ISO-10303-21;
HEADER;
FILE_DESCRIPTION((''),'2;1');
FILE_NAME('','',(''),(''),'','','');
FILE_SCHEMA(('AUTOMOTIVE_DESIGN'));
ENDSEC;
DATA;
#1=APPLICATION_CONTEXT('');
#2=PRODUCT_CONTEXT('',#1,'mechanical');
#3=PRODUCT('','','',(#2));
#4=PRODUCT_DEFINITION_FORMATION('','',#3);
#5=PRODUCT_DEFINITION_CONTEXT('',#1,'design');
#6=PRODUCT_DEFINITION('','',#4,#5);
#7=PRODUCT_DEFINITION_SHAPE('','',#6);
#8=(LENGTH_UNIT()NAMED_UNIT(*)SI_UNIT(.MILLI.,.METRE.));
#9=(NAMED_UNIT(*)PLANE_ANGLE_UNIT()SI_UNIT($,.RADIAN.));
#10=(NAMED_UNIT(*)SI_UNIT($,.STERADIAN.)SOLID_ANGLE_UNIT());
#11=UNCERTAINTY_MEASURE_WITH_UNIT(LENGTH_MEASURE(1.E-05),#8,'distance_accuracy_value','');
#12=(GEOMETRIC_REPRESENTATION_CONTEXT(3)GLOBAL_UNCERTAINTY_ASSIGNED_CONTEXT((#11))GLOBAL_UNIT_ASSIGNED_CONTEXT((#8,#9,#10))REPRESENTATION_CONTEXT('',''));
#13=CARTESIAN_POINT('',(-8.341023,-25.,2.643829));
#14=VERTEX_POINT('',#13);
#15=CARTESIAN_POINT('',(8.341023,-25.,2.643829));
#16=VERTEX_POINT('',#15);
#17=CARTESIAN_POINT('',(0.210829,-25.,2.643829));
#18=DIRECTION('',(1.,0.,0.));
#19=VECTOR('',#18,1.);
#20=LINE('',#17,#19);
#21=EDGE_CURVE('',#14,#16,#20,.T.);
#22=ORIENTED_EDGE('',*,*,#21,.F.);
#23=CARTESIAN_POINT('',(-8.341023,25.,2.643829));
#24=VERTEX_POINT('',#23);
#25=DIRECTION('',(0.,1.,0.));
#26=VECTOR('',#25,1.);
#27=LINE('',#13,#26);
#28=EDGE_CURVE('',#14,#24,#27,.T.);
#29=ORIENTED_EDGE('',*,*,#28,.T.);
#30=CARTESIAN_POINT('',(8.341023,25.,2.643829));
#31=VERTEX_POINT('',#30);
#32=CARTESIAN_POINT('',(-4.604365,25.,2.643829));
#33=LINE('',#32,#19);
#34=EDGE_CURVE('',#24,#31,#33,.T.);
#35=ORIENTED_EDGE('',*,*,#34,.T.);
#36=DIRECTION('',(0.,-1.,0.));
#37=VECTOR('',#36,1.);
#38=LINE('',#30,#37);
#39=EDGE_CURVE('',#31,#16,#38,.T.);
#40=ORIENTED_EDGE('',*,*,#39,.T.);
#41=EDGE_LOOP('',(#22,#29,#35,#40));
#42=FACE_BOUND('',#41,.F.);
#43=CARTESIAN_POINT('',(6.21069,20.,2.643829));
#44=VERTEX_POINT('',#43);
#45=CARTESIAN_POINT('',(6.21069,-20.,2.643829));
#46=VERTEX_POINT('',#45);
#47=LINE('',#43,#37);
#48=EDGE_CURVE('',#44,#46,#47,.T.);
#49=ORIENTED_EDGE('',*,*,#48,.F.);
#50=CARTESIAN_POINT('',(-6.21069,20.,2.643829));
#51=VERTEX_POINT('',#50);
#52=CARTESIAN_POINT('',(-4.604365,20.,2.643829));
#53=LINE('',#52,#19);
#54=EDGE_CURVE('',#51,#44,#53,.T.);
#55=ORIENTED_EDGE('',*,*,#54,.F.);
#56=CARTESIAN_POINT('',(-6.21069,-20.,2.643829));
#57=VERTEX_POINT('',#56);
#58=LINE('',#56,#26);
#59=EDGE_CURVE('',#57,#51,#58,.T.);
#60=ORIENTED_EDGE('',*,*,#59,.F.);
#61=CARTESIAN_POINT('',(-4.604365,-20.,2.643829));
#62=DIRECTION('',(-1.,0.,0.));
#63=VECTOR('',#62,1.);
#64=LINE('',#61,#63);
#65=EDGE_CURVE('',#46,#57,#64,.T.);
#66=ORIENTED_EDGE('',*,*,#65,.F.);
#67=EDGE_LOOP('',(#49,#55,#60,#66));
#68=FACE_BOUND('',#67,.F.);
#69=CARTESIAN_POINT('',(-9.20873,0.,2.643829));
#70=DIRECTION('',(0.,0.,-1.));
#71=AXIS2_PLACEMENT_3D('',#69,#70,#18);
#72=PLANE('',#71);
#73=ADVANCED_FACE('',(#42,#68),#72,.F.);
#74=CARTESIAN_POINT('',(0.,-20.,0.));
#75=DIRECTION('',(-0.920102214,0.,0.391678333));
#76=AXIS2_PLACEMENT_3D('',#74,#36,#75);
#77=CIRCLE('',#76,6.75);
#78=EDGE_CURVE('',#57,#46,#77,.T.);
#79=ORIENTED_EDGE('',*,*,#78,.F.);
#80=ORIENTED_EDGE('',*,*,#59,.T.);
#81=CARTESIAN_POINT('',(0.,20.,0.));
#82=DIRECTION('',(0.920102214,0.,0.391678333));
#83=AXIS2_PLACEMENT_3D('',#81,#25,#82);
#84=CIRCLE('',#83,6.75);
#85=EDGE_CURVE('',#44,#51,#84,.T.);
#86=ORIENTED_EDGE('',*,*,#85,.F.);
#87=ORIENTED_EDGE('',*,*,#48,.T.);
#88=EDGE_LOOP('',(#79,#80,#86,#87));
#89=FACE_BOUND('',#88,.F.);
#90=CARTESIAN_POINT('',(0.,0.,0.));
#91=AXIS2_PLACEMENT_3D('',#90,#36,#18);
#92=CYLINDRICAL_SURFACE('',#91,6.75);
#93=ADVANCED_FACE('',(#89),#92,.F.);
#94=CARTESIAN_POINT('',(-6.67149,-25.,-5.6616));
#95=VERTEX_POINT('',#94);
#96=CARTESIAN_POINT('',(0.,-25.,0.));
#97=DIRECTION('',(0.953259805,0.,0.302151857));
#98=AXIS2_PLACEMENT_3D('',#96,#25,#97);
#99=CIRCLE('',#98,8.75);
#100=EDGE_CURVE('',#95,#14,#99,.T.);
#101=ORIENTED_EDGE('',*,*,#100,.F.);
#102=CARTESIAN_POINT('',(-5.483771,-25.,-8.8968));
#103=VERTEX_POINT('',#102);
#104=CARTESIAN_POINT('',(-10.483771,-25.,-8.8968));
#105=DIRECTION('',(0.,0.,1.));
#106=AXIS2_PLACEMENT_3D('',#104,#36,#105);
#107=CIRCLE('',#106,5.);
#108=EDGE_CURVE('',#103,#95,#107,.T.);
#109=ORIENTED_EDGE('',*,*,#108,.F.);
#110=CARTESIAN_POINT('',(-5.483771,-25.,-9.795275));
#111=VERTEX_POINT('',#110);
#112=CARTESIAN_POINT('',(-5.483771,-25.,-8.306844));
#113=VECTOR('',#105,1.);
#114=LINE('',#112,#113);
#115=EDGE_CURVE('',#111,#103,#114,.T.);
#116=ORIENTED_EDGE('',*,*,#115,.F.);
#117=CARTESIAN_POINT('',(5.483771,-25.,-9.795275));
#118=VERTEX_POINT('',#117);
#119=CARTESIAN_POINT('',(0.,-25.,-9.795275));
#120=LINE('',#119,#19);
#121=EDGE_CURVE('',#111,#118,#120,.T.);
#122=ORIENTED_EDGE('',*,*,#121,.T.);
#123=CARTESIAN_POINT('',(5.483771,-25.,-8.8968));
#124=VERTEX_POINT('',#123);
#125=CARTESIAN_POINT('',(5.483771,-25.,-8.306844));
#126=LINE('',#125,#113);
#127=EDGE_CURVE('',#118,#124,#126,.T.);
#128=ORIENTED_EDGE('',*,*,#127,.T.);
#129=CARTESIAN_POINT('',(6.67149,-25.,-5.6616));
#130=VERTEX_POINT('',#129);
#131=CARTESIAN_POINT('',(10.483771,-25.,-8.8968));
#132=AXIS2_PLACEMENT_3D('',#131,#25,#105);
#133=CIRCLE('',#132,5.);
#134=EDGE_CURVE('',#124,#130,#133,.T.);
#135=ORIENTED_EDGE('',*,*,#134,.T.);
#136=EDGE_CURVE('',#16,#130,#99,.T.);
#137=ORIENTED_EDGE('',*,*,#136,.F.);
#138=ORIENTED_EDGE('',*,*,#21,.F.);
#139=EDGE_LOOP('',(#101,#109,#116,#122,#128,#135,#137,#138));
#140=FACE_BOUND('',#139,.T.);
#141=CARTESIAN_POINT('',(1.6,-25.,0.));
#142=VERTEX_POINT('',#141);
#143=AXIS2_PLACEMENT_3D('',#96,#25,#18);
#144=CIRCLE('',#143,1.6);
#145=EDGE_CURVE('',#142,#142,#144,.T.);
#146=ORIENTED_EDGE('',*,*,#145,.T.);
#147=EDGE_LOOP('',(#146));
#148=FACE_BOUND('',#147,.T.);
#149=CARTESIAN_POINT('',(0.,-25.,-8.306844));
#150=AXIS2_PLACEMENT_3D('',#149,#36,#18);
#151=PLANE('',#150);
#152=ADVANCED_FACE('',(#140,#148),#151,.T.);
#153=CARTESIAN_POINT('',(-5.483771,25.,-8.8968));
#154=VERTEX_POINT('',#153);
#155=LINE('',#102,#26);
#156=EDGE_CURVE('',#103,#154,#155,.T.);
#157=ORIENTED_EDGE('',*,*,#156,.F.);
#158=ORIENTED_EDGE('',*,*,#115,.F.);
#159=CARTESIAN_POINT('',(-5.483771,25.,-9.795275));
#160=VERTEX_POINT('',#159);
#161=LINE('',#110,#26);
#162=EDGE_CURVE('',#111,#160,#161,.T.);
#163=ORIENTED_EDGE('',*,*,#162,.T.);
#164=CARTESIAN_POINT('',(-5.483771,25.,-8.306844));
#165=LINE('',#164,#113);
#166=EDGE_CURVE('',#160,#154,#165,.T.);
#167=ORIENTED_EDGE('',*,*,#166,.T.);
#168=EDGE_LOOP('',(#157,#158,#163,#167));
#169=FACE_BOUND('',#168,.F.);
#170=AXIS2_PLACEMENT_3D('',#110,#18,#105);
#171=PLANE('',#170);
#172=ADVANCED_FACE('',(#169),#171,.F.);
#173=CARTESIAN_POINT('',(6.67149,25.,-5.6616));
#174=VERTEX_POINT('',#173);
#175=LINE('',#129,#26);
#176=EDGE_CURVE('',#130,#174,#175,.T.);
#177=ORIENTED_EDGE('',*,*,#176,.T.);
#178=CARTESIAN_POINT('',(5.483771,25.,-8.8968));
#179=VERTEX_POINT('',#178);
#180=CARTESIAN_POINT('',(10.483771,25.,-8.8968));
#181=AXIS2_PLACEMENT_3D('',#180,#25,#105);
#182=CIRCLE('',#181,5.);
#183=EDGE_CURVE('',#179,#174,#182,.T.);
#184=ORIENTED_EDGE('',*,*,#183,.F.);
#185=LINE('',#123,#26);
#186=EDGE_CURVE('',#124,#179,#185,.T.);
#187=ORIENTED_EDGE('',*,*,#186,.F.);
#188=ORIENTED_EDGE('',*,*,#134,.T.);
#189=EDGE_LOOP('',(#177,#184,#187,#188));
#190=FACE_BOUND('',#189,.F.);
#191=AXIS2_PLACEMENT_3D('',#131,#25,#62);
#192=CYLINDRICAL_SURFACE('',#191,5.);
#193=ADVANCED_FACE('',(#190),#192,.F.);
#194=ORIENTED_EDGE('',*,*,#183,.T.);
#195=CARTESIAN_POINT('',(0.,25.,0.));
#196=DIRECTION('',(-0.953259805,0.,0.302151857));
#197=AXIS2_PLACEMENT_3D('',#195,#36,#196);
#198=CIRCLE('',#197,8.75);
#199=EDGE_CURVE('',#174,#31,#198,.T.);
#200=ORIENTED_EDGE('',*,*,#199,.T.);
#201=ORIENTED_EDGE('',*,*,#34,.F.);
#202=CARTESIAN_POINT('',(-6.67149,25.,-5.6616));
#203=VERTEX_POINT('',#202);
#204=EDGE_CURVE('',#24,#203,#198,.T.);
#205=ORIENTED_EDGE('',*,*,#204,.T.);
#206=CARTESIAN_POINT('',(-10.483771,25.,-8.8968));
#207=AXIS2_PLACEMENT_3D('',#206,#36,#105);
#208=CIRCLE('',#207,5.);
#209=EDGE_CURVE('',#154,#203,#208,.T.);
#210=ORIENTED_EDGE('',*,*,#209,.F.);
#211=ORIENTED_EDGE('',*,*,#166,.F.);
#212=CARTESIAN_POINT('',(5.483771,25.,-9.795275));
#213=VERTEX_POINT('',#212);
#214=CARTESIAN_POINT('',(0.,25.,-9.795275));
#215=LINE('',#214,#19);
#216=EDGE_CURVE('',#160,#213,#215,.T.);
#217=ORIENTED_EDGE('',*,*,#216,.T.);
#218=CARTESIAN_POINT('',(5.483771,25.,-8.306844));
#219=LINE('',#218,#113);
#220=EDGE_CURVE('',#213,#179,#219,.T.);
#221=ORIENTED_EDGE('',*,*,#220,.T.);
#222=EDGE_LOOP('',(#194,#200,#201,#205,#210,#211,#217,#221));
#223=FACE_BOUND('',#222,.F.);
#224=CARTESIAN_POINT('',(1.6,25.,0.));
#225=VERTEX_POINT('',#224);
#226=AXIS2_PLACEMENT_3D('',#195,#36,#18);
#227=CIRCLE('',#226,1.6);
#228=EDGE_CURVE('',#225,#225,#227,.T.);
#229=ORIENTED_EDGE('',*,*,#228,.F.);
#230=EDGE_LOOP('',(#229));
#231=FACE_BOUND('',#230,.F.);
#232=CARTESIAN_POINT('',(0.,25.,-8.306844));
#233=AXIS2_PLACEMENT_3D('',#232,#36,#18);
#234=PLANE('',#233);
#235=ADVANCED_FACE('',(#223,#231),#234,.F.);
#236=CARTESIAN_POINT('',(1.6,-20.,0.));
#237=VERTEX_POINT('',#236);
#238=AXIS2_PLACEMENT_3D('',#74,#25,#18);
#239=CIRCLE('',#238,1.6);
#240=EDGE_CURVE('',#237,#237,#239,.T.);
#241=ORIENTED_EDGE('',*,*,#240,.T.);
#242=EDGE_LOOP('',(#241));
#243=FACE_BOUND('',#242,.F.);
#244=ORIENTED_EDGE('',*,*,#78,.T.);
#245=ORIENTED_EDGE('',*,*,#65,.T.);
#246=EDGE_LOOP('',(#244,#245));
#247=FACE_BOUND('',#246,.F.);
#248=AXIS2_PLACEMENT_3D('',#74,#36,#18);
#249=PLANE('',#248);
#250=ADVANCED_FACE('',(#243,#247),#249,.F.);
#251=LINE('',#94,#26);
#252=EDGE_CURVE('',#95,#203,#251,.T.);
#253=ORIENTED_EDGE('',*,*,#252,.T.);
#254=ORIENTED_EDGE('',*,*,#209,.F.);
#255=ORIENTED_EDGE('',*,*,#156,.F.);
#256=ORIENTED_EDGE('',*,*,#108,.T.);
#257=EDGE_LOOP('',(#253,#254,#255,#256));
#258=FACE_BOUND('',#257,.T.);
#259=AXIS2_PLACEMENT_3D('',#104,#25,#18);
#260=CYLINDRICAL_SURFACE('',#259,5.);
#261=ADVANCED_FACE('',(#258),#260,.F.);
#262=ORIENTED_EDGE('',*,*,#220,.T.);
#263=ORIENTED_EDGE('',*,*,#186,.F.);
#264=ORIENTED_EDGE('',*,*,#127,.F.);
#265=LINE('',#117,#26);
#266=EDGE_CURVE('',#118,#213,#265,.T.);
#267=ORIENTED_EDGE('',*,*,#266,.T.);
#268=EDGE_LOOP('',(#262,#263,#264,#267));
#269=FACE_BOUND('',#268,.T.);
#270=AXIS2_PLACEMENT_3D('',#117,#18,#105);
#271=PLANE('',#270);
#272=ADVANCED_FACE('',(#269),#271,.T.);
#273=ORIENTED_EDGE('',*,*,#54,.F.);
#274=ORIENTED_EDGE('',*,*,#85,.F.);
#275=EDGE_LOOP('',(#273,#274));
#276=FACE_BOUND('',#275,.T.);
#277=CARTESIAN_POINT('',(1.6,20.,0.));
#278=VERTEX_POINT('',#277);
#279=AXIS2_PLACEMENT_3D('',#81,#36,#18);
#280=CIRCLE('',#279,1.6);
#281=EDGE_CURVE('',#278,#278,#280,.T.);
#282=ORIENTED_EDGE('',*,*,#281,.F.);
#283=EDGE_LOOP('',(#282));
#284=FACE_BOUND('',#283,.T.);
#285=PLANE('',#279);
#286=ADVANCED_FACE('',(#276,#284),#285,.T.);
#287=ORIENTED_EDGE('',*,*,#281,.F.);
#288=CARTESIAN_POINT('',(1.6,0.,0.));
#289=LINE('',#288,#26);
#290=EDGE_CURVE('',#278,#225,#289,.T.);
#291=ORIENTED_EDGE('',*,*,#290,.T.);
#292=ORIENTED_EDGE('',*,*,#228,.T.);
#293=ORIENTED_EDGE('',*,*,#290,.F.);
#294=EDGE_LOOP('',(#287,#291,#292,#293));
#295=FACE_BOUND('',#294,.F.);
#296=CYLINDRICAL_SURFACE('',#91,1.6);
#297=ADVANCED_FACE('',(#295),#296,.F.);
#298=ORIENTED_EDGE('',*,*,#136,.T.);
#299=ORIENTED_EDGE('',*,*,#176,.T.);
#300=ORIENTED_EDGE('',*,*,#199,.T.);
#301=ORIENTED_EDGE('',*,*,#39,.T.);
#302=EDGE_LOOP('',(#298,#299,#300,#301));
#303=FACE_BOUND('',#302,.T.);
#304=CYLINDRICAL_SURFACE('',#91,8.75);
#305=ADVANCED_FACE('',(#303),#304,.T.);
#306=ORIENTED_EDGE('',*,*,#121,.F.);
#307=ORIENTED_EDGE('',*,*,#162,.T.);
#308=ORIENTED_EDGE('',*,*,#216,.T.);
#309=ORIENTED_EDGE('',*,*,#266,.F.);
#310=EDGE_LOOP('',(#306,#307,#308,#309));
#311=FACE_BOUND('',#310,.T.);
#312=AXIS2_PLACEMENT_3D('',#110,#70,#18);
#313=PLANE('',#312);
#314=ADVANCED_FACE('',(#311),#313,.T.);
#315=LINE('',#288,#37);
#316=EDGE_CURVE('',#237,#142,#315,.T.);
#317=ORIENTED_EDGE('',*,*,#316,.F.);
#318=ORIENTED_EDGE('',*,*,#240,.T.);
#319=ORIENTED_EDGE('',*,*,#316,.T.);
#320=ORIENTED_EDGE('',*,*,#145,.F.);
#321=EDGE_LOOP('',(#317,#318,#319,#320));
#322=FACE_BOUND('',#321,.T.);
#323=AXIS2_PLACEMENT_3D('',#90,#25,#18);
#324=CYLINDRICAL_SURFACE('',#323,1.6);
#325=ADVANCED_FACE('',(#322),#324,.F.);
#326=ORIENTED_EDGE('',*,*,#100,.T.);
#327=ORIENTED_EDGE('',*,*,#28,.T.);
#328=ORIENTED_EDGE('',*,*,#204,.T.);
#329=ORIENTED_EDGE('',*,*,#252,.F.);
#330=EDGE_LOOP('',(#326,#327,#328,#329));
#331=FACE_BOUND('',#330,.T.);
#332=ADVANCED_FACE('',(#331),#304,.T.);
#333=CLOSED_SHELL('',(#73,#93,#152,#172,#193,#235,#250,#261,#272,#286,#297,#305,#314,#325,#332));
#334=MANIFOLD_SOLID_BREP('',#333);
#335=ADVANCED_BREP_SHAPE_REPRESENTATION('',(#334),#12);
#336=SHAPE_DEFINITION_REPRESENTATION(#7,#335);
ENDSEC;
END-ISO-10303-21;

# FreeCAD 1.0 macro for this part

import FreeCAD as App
import Part
import Sketcher
from FreeCAD import Vector


def edges_at(feature, points):
    """Names of the edges that pass closest to the given points."""
    edges = feature.Shape.Edges
    near = lambda p: min(range(len(edges)), key=lambda i: edges[i].distToShape(Part.Vertex(*p))[0])
    return sorted({f"Edge{near(p) + 1}" for p in points})


def add_polygon(sketch, points):
    """Adds a closed chain of lines whose ends are joined by coincident constraints."""
    first, n = sketch.GeometryCount, len(points)
    for a, b in zip(points, points[1:] + points[:1]):
        sketch.addGeometry(Part.LineSegment(App.Vector(*a, 0), App.Vector(*b, 0)), False)
    for i in range(n):
        sketch.addConstraint(Sketcher.Constraint("Coincident", first + i, 2, first + (i + 1) % n, 1))

doc = App.newDocument("Part")
body = doc.addObject("PartDesign::Body", "Body")

# Sketch on XZ plane
sketch1 = body.newObject("Sketcher::SketchObject", "Sketch")
sketch1.AttachmentSupport = (doc.getObject("XZ_Plane"), [""])
sketch1.MapMode = "FlatFace"
sketch1.addGeometry(Part.Circle(Vector(0, 0, 0), Vector(0, 0, 1), 9), False)
sketch1.addConstraint([
    Sketcher.Constraint("Coincident", 0, 3, -1, 1),
    Sketcher.Constraint("Diameter", 0, 17.5),
])
pad1 = body.newObject("PartDesign::Pad", "Pad")
pad1.Profile = sketch1
pad1.Type = "TwoLengths"
pad1.Length = 25
pad1.Length2 = 25

# Sketch on XZ plane
sketch2 = body.newObject("Sketcher::SketchObject", "Sketch001")
sketch2.AttachmentSupport = (doc.getObject("XZ_Plane"), [""])
sketch2.MapMode = "FlatFace"
sketch2.addGeometry(Part.Circle(Vector(0, 0, 0), Vector(0, 0, 1), 7), False)
sketch2.addConstraint([
    Sketcher.Constraint("Coincident", 0, 3, -1, 1),
    Sketcher.Constraint("Diameter", 0, 13.5),
])
pocket1 = body.newObject("PartDesign::Pocket", "Pocket")
pocket1.Profile = sketch2
pocket1.Type = "TwoLengths"
pocket1.Length = 20
pocket1.Length2 = 20

# Sketch on XZ plane
sketch3 = body.newObject("Sketcher::SketchObject", "Sketch002")
sketch3.AttachmentSupport = (doc.getObject("XZ_Plane"), [""])
sketch3.MapMode = "FlatFace"
add_polygon(sketch3, [(-9, 9), (-9, 3), (10, 3), (10, 9)])  # lines 0-3
sketch3.addConstraint([
    Sketcher.Constraint("Vertical", 0),
    Sketcher.Constraint("Horizontal", 1),
    Sketcher.Constraint("Vertical", 2),
    Sketcher.Constraint("Horizontal", 3),
    Sketcher.Constraint("DistanceX", 1, 1, 1, 2, 18.839119),
    Sketcher.Constraint("DistanceY", 0, 2, 0, 1, 6.496437),
    Sketcher.Constraint("DistanceX", 0, 2, -1, 1, 9.20873),
    Sketcher.Constraint("DistanceY", -1, 1, 0, 2, 2.643829),
])
pocket2 = body.newObject("PartDesign::Pocket", "Pocket001")
pocket2.Profile = sketch3
pocket2.Type = "ThroughAll"
pocket2.Midplane = True

# Sketch on XZ plane
sketch4 = body.newObject("Sketcher::SketchObject", "Sketch003")
sketch4.AttachmentSupport = (doc.getObject("XZ_Plane"), [""])
sketch4.MapMode = "FlatFace"
sketch4.AttachmentOffset = App.Placement(Vector(0, 0, 25), App.Rotation())
add_polygon(sketch4, [(-5.5, -6.8), (-5.5, -9.8), (5.5, -9.8), (5.5, -6.8)])  # lines 0-3
sketch4.addConstraint([
    Sketcher.Constraint("Vertical", 0),
    Sketcher.Constraint("Horizontal", 1),
    Sketcher.Constraint("Vertical", 2),
    Sketcher.Constraint("Horizontal", 3),
    Sketcher.Constraint("DistanceX", 1, 1, 1, 2, 10.967541),
    Sketcher.Constraint("DistanceY", 0, 2, 0, 1, 2.976861),
    Sketcher.Constraint("DistanceX", 0, 2, -1, 1, 5.483771),
    Sketcher.Constraint("DistanceY", 0, 2, -1, 1, 9.795275),
])
pad2 = body.newObject("PartDesign::Pad", "Pad001")
pad2.Profile = sketch4
pad2.Type = "UpToLast"
pad2.Reversed = True
doc.recompute()

fillet = body.newObject("PartDesign::Fillet", "Fillet")
fillet.Base = (pad2, edges_at(pad2, [(5.484, 0, -6.818), (-5.484, 0, -6.818)]))
fillet.Radius = 5

# Sketch on XZ plane
sketch5 = body.newObject("Sketcher::SketchObject", "Sketch004")
sketch5.AttachmentSupport = (doc.getObject("XZ_Plane"), [""])
sketch5.MapMode = "FlatFace"
sketch5.addGeometry(Part.Circle(Vector(0, 0, 0), Vector(0, 0, 1), 1.6), False)
sketch5.addConstraint([
    Sketcher.Constraint("Coincident", 0, 3, -1, 1),
    Sketcher.Constraint("Diameter", 0, 3.2),
])
pocket3 = body.newObject("PartDesign::Pocket", "Pocket002")
pocket3.Profile = sketch5
pocket3.Type = "ThroughAll"
pocket3.Midplane = True

doc.recompute()
